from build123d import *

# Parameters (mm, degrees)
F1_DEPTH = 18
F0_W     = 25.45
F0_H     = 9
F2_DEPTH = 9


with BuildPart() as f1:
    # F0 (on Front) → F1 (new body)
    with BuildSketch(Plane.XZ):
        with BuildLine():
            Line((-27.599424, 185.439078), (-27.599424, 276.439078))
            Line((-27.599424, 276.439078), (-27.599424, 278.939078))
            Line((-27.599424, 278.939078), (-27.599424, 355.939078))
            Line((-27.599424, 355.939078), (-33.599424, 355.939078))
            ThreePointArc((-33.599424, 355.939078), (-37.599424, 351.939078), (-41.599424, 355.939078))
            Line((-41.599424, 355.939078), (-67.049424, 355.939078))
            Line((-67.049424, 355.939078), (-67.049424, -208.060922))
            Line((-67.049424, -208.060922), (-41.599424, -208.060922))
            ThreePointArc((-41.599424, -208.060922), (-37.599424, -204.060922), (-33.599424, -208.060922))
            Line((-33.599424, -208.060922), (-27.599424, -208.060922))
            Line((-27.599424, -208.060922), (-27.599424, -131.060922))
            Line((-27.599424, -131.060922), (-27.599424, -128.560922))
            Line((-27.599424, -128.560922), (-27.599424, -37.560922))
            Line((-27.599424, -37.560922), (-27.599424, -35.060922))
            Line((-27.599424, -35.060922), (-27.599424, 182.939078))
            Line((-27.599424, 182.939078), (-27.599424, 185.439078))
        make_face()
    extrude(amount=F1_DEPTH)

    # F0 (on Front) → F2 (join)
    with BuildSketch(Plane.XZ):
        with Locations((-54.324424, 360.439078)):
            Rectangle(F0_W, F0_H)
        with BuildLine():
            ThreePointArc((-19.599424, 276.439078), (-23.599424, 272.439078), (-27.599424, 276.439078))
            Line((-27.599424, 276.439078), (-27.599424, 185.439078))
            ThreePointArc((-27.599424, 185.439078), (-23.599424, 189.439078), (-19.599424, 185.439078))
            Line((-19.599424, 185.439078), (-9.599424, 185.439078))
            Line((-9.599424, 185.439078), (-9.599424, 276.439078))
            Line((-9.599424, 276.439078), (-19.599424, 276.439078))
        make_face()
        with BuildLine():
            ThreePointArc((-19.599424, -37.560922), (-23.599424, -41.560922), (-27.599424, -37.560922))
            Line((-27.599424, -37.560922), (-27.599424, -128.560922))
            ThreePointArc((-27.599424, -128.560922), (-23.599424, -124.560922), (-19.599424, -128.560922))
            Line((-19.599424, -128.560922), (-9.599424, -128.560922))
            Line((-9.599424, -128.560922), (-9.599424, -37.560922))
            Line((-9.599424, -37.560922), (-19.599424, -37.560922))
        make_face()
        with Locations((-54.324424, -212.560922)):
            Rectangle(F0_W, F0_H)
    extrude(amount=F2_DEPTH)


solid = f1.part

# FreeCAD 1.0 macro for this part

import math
import FreeCAD as App
import Part
import Sketcher

V = App.Vector


def add_polygon(sketch, points):
    """Adds a closed chain of lines whose ends are joined by coincident constraints."""
    first, n = sketch.GeometryCount, len(points)
    for a, b in zip(points, points[1:] + points[:1]):
        sketch.addGeometry(Part.LineSegment(App.Vector(*a, 0), App.Vector(*b, 0)), False)
    for i in range(n):
        sketch.addConstraint(Sketcher.Constraint("Coincident", first + i, 2, first + (i + 1) % n, 1))

doc = App.newDocument("Part")
body = doc.addObject("PartDesign::Body", "Body")

# Sketch on XZ plane
sketch1 = body.newObject("Sketcher::SketchObject", "Sketch")
sketch1.AttachmentSupport = (doc.getObject("XZ_Plane"), [""])
sketch1.MapMode = "FlatFace"
sketch1.addGeometry([
    Part.LineSegment(V(-27.6, 355.9, 0), V(-33.6, 355.9, 0)),  # 0
    Part.ArcOfCircle(Part.Circle(V(-37.6, 355.9, 0), V(0, 0, 1), 4), math.radians(180), math.radians(360)),  # 1
    Part.LineSegment(V(-41.6, 355.9, 0), V(-67, 355.9, 0)),  # 2
    Part.LineSegment(V(-67, 355.9, 0), V(-67, -208.1, 0)),  # 3
    Part.LineSegment(V(-67, -208.1, 0), V(-41.6, -208.1, 0)),  # 4
    Part.ArcOfCircle(Part.Circle(V(-37.6, -208.1, 0), V(0, 0, 1), 4), math.radians(0), math.radians(180)),  # 5
    Part.LineSegment(V(-33.6, -208.1, 0), V(-27.6, -208.1, 0)),  # 6
    Part.LineSegment(V(-27.6, -208.1, 0), V(-27.6, 355.9, 0)),  # 7
], False)
sketch1.addConstraint([
    Sketcher.Constraint("Coincident", 0, 2, 1, 2),
    Sketcher.Constraint("Coincident", 1, 1, 2, 1),
    Sketcher.Constraint("Coincident", 2, 2, 3, 1),
    Sketcher.Constraint("Coincident", 3, 2, 4, 1),
    Sketcher.Constraint("Coincident", 4, 2, 5, 2),
    Sketcher.Constraint("Coincident", 5, 1, 6, 1),
    Sketcher.Constraint("Coincident", 6, 2, 7, 1),
    Sketcher.Constraint("Coincident", 7, 2, 0, 1),
    Sketcher.Constraint("Horizontal", 0),
    Sketcher.Constraint("Horizontal", 2),
    Sketcher.Constraint("Vertical", 3),
    Sketcher.Constraint("Horizontal", 4),
    Sketcher.Constraint("Horizontal", 6),
    Sketcher.Constraint("Vertical", 7),
    Sketcher.Constraint("Equal", 1, 5),
    Sketcher.Constraint("Horizontal", 1, 3, 0, 2),
    Sketcher.Constraint("Horizontal", 0, 2, 1, 1),
    Sketcher.Constraint("Horizontal", 5, 3, 3, 2),
    Sketcher.Constraint("Horizontal", 4, 2, 5, 1),
    Sketcher.Constraint("Vertical", 1, 3, 5, 3),
    Sketcher.Constraint("Radius", 1, 4.0),
    Sketcher.Constraint("DistanceX", 0, 2, 0, 1, 6.0),
    Sketcher.Constraint("DistanceY", 3, 2, 3, 1, 564.0),
    Sketcher.Constraint("DistanceX", 2, 2, 2, 1, 25.45),
    Sketcher.Constraint("DistanceY", -1, 1, 1, 3, 355.939078),
    Sketcher.Constraint("DistanceX", 1, 3, -1, 1, 37.599424),
])
pad1 = body.newObject("PartDesign::Pad", "Pad")
pad1.Profile = sketch1
pad1.Length = 18

# Sketch on XZ plane
sketch2 = body.newObject("Sketcher::SketchObject", "Sketch001")
sketch2.AttachmentSupport = (doc.getObject("XZ_Plane"), [""])
sketch2.MapMode = "FlatFace"
add_polygon(sketch2, [(-67, 364.9), (-67, 355.9), (-41.6, 355.9), (-41.6, 364.9)])  # lines 0-3
sketch2.addGeometry(Part.ArcOfCircle(Part.Circle(V(-23.6, 276.4, 0), V(0, 0, 1), 4), math.radians(180), math.radians(360)), False)  # 4
sketch2.addGeometry(Part.LineSegment(V(-27.6, 276.4, 0), V(-27.6, 185.4, 0)), False)  # 5
sketch2.addGeometry(Part.ArcOfCircle(Part.Circle(V(-23.6, 185.4, 0), V(0, 0, 1), 4), math.radians(0), math.radians(180)), False)  # 6
sketch2.addGeometry(Part.LineSegment(V(-19.6, 185.4, 0), V(-9.6, 185.4, 0)), False)  # 7
sketch2.addGeometry(Part.LineSegment(V(-9.6, 185.4, 0), V(-9.6, 276.4, 0)), False)  # 8
sketch2.addGeometry(Part.LineSegment(V(-9.6, 276.4, 0), V(-19.6, 276.4, 0)), False)  # 9
sketch2.addGeometry(Part.ArcOfCircle(Part.Circle(V(-23.6, -37.6, 0), V(0, 0, 1), 4), math.radians(180), math.radians(360)), False)  # 10
sketch2.addGeometry(Part.LineSegment(V(-27.6, -37.6, 0), V(-27.6, -128.6, 0)), False)  # 11
sketch2.addGeometry(Part.ArcOfCircle(Part.Circle(V(-23.6, -128.6, 0), V(0, 0, 1), 4), math.radians(0), math.radians(180)), False)  # 12
sketch2.addGeometry(Part.LineSegment(V(-19.6, -128.6, 0), V(-9.6, -128.6, 0)), False)  # 13
sketch2.addGeometry(Part.LineSegment(V(-9.6, -128.6, 0), V(-9.6, -37.6, 0)), False)  # 14
sketch2.addGeometry(Part.LineSegment(V(-9.6, -37.6, 0), V(-19.6, -37.6, 0)), False)  # 15
add_polygon(sketch2, [(-67, -208.1), (-67, -217.1), (-41.6, -217.1), (-41.6, -208.1)])  # lines 16-19
sketch2.addConstraint([
    Sketcher.Constraint("Tangent", 4, 1, 5, 1),
    Sketcher.Constraint("Tangent", 5, 2, 6, 2),
    Sketcher.Constraint("Coincident", 6, 1, 7, 1),
    Sketcher.Constraint("Coincident", 7, 2, 8, 1),
    Sketcher.Constraint("Coincident", 8, 2, 9, 1),
    Sketcher.Constraint("Coincident", 9, 2, 4, 2),
    Sketcher.Constraint("Tangent", 10, 1, 11, 1),
    Sketcher.Constraint("Tangent", 11, 2, 12, 2),
    Sketcher.Constraint("Coincident", 12, 1, 13, 1),
    Sketcher.Constraint("Coincident", 13, 2, 14, 1),
    Sketcher.Constraint("Coincident", 14, 2, 15, 1),
    Sketcher.Constraint("Coincident", 15, 2, 10, 2),
    Sketcher.Constraint("Vertical", 0),
    Sketcher.Constraint("Horizontal", 1),
    Sketcher.Constraint("Vertical", 2),
    Sketcher.Constraint("Horizontal", 3),
    Sketcher.Constraint("Vertical", 5),
    Sketcher.Constraint("Horizontal", 7),
    Sketcher.Constraint("Vertical", 8),
    Sketcher.Constraint("Horizontal", 9),
    Sketcher.Constraint("Vertical", 11),
    Sketcher.Constraint("Horizontal", 13),
    Sketcher.Constraint("Vertical", 14),
    Sketcher.Constraint("Horizontal", 15),
    Sketcher.Constraint("Vertical", 16),
    Sketcher.Constraint("Horizontal", 17),
    Sketcher.Constraint("Vertical", 18),
    Sketcher.Constraint("Horizontal", 19),
    Sketcher.Constraint("Equal", 4, 6),
    Sketcher.Constraint("Equal", 6, 10),
    Sketcher.Constraint("Equal", 10, 12),
    Sketcher.Constraint("Horizontal", 5, 2, 6, 1),
    Sketcher.Constraint("Horizontal", 4, 1, 8, 2),
    Sketcher.Constraint("Horizontal", 11, 2, 12, 1),
    Sketcher.Constraint("Horizontal", 10, 1, 14, 2),
    Sketcher.Constraint("Vertical", 6, 3, 10, 3),
    Sketcher.Constraint("Vertical", 8, 2, 13, 2),
    Sketcher.Constraint("Vertical", 3, 2, 16, 2),
    Sketcher.Constraint("Vertical", 2, 2, 17, 2),
    Sketcher.Constraint("Equal", 8, 11),
    Sketcher.Constraint("Equal", 2, 16),
    Sketcher.Constraint("Radius", 4, 4.0),
    Sketcher.Constraint("DistanceX", 7, 1, 7, 2, 10.0),
    Sketcher.Constraint("DistanceY", 0, 2, 0, 1, 9.0),
    Sketcher.Constraint("DistanceY", 5, 2, 5, 1, 91.0),
    Sketcher.Constraint("DistanceY", 10, 3, 6, 3, 223.0),
    Sketcher.Constraint("DistanceX", 1, 2, 4, 3, 18.0),
    Sketcher.Constraint("DistanceX", 1, 1, 1, 2, 25.45),
    Sketcher.Constraint("DistanceY", 4, 3, 0, 2, 79.5),
    Sketcher.Constraint("DistanceY", 16, 2, 11, 2, 88.5),
    Sketcher.Constraint("DistanceY", -1, 1, 4, 3, 276.439078),
    Sketcher.Constraint("DistanceX", 4, 3, -1, 1, 23.599424),
])
pad2 = body.newObject("PartDesign::Pad", "Pad001")
pad2.Profile = sketch2
pad2.Length = 9

doc.recompute()
